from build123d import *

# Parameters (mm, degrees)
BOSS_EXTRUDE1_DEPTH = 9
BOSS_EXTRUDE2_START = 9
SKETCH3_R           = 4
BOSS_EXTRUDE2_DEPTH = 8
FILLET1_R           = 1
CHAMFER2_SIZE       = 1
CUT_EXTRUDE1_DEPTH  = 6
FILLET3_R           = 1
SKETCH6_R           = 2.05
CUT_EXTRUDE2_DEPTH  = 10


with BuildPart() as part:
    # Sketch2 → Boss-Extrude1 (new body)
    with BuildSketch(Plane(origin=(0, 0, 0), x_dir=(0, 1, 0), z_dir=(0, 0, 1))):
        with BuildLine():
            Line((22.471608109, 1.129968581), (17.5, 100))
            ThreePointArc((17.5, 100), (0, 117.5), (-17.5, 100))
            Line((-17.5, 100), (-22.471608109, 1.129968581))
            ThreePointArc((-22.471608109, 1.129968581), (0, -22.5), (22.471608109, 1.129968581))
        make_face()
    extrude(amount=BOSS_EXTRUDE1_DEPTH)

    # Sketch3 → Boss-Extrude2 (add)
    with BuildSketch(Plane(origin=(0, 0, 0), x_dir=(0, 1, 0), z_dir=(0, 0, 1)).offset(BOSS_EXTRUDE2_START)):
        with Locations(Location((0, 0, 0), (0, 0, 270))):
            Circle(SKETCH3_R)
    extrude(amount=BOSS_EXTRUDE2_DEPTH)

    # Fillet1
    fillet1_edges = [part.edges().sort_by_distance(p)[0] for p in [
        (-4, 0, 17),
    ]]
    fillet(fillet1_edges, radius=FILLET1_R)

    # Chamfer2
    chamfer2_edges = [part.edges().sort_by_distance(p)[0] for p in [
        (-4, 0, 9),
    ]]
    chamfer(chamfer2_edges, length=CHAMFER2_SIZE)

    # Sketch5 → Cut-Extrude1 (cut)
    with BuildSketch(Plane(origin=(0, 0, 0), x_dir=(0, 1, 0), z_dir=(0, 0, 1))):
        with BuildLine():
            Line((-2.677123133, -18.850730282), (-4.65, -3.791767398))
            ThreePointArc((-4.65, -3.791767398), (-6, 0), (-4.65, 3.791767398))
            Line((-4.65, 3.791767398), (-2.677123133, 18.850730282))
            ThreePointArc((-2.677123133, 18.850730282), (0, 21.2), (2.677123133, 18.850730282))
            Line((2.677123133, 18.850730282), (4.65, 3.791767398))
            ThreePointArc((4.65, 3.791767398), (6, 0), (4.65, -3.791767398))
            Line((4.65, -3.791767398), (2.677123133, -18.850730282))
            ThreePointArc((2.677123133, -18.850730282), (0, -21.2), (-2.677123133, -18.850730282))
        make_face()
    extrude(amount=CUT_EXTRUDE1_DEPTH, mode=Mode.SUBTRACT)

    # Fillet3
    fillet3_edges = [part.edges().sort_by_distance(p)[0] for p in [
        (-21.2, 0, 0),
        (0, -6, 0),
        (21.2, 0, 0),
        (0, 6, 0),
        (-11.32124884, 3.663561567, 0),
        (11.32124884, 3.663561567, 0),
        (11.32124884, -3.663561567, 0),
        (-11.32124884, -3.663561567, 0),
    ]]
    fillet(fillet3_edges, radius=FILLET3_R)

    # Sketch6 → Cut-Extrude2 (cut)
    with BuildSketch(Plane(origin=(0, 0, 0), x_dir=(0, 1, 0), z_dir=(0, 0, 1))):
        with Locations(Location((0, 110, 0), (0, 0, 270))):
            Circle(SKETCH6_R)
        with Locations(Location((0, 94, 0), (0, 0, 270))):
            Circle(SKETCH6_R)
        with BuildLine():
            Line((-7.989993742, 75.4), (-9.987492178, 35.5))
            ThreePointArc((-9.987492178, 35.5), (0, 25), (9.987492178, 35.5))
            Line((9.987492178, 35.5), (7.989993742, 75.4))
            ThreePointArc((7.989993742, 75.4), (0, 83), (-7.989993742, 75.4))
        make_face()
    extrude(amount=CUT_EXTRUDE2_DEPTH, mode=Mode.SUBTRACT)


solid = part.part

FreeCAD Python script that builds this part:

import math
import FreeCAD as App
import Part
import Sketcher
from FreeCAD import Vector


def edges_at(feature, points):
    """Names of the edges that pass closest to the given points."""
    edges = feature.Shape.Edges
    near = lambda p: min(range(len(edges)), key=lambda i: edges[i].distToShape(Part.Vertex(*p))[0])
    return sorted({f"Edge{near(p) + 1}" for p in points})

doc = App.newDocument("Part")
params = doc.addObject("Spreadsheet::Sheet", "Params")
for row, (alias, value) in enumerate([
    ("sketch1_radius", "17.5 mm"),
    ("sketch1_radius2", "22.5 mm"),
    ("pad1_length", "9 mm"),
    ("sketch2_diameter", "8 mm"),
    ("pad2_length", "8 mm"),
    ("fillet_radius", "1 mm"),
    ("chamfer_size", "1 mm"),
    ("sketch3_radius", "6 mm"),
    ("sketch3_radius2", "2.7 mm"),
    ("pocket1_length", "6 mm"),
    ("fillet2_radius", "1 mm"),
    ("sketch4_radius", "10 mm"),
    ("sketch4_radius2", "8 mm"),
    ("sketch4_diameter", "4.1 mm"),
    ("pocket2_length", "10 mm"),
], start=1):
    params.set(f"A{row}", alias)
    params.set(f"B{row}", "=" + value)
    params.setAlias(f"B{row}", alias)

body = doc.addObject("PartDesign::Body", "Body")

# Sketch on XY plane
sketch1 = body.newObject("Sketcher::SketchObject", "Sketch")
sketch1.AttachmentSupport = (doc.getObject("XY_Plane"), [""])
sketch1.MapMode = "FlatFace"
sketch1.addGeometry([
    Part.LineSegment(Vector(-1, 22, 0), Vector(-100, 18, 0)),
    Part.ArcOfCircle(Part.Circle(Vector(-100, 0, 0), Vector(0, 0, 1), 18), math.radians(90), math.radians(270)),
    Part.LineSegment(Vector(-100, -18, 0), Vector(-1, -22, 0)),
    Part.ArcOfCircle(Part.Circle(Vector(0, 0, 0), Vector(0, 0, 1), 22), math.radians(-93), math.radians(93)),
], False)
sketch1.addConstraint([
    Sketcher.Constraint("Coincident", 0, 2, 1, 1),
    Sketcher.Constraint("Coincident", 1, 2, 2, 1),
    Sketcher.Constraint("Tangent", 2, 2, 3, 1),
    Sketcher.Constraint("Tangent", 3, 2, 0, 1),
    Sketcher.Constraint("Coincident", 3, 3, -1, 1),
    Sketcher.Constraint("Symmetric", 0, 2, 1, 2, -1),
    Sketcher.Constraint("Vertical", 1, 3, 0, 2),
    Sketcher.Constraint("Radius", 1, 17.5),
    Sketcher.Constraint("Radius", 3, 22.5),
    Sketcher.Constraint("DistanceX", 1, 3, -1, 1, 100.0),
])
sketch1.setExpression("Constraints[7]", "Params.sketch1_radius")
sketch1.setExpression("Constraints[8]", "Params.sketch1_radius2")
pad1 = body.newObject("PartDesign::Pad", "Pad")
pad1.Profile = sketch1
pad1.setExpression("Length", "Params.pad1_length")

# Sketch on XY plane
sketch2 = body.newObject("Sketcher::SketchObject", "Sketch001")
sketch2.AttachmentSupport = (doc.getObject("XY_Plane"), [""])
sketch2.MapMode = "FlatFace"
sketch2.AttachmentOffset = App.Placement(Vector(0, 0, 9), App.Rotation())
sketch2.addGeometry(Part.Circle(Vector(0, 0, 0), Vector(0, 0, 1), 4), False)
sketch2.addConstraint([
    Sketcher.Constraint("Coincident", 0, 3, -1, 1),
    Sketcher.Constraint("Diameter", 0, 8.0),
])
sketch2.setExpression("Constraints[1]", "Params.sketch2_diameter")
pad2 = body.newObject("PartDesign::Pad", "Pad001")
pad2.Profile = sketch2
pad2.setExpression("Length", "Params.pad2_length")
doc.recompute()

fillet = body.newObject("PartDesign::Fillet", "Fillet")
fillet.Base = (pad2, edges_at(pad2, [(-4, 0, 17)]))
fillet.setExpression("Radius", "Params.fillet_radius")
doc.recompute()

chamfer = body.newObject("PartDesign::Chamfer", "Chamfer")
chamfer.Base = (fillet, edges_at(fillet, [(-4, 0, 9)]))
chamfer.setExpression("Size", "Params.chamfer_size")

# Sketch on XY plane
sketch3 = body.newObject("Sketcher::SketchObject", "Sketch002")
sketch3.AttachmentSupport = (doc.getObject("XY_Plane"), [""])
sketch3.MapMode = "FlatFace"
sketch3.addGeometry([
    Part.LineSegment(Vector(3.8, -4.7, 0), Vector(18.9, -2.7, 0)),  # 0
    Part.ArcOfCircle(Part.Circle(Vector(18.5, 0, 0), Vector(0, 0, 1), 2.7), math.radians(-83), math.radians(83)),  # 1
    Part.LineSegment(Vector(18.9, 2.7, 0), Vector(3.8, 4.7, 0)),  # 2
    Part.ArcOfCircle(Part.Circle(Vector(0, 0, 0), Vector(0, 0, 1), 6), math.radians(51), math.radians(129)),  # 3
    Part.LineSegment(Vector(-3.8, 4.7, 0), Vector(-18.9, 2.7, 0)),  # 4
    Part.ArcOfCircle(Part.Circle(Vector(-18.5, 0, 0), Vector(0, 0, 1), 2.7), math.radians(97), math.radians(263)),  # 5
    Part.LineSegment(Vector(-18.9, -2.7, 0), Vector(-3.8, -4.7, 0)),  # 6
    Part.ArcOfCircle(Part.Circle(Vector(0, 0, 0), Vector(0, 0, 1), 6), math.radians(-129), math.radians(-51)),  # 7
], False)
sketch3.addConstraint([
    Sketcher.Constraint("Tangent", 0, 2, 1, 1),
    Sketcher.Constraint("Tangent", 1, 2, 2, 1),
    Sketcher.Constraint("Coincident", 2, 2, 3, 1),
    Sketcher.Constraint("Coincident", 3, 2, 4, 1),
    Sketcher.Constraint("Tangent", 4, 2, 5, 1),
    Sketcher.Constraint("Tangent", 5, 2, 6, 1),
    Sketcher.Constraint("Coincident", 6, 2, 7, 1),
    Sketcher.Constraint("Coincident", 7, 2, 0, 1),
    Sketcher.Constraint("Coincident", 3, 3, -1, 1),
    Sketcher.Constraint("Coincident", 7, 3, -1, 1),
    Sketcher.Constraint("Equal", 1, 5),
    Sketcher.Constraint("Equal", 3, 7),
    Sketcher.Constraint("Symmetric", 1, 3, 5, 3, -1, 1),
    Sketcher.Constraint("Symmetric", 1, 2, 4, 2, -2),
    Sketcher.Constraint("Parallel", 0, 4),
    Sketcher.Constraint("Parallel", 2, 6),
    Sketcher.Constraint("Radius", 3, 6.0),
    Sketcher.Constraint("Radius", 1, 2.7),
    Sketcher.Constraint("DistanceX", 5, 3, 1, 3, 37.0),
    Sketcher.Constraint("DistanceY", 6, 2, 3, 2, 9.3),
])
sketch3.setExpression("Constraints[16]", "Params.sketch3_radius")
sketch3.setExpression("Constraints[17]", "Params.sketch3_radius2")
pocket1 = body.newObject("PartDesign::Pocket", "Pocket")
pocket1.Profile = sketch3
pocket1.setExpression("Length", "Params.pocket1_length")
pocket1.Reversed = True
doc.recompute()

fillet2 = body.newObject("PartDesign::Fillet", "Fillet001")
fillet2.Base = (pocket1, edges_at(pocket1, [
    (-21.2, 0, 0),
    (0, -6, 0),
    (21.2, 0, 0),
    (0, 6, 0),
    (-11.321, 3.664, 0),
    (11.321, 3.664, 0),
    (11.321, -3.664, 0),
    (-11.321, -3.664, 0),
]))
fillet2.setExpression("Radius", "Params.fillet2_radius")

# Sketch on XY plane
sketch4 = body.newObject("Sketcher::SketchObject", "Sketch003")
sketch4.AttachmentSupport = (doc.getObject("XY_Plane"), [""])
sketch4.MapMode = "FlatFace"
sketch4.addGeometry([
    Part.Circle(Vector(-110, 0, 0), Vector(0, 0, 1), 2),  # 0
    Part.Circle(Vector(-94, 0, 0), Vector(0, 0, 1), 2),  # 1
    Part.LineSegment(Vector(-75.4, -8, 0), Vector(-35.5, -10, 0)),  # 2
    Part.ArcOfCircle(Part.Circle(Vector(-35, 0, 0), Vector(0, 0, 1), 10), math.radians(-93), math.radians(93)),  # 3
    Part.LineSegment(Vector(-35.5, 10, 0), Vector(-75.4, 8, 0)),  # 4
    Part.ArcOfCircle(Part.Circle(Vector(-75, 0, 0), Vector(0, 0, 1), 8), math.radians(93), math.radians(267)),  # 5
], False)
sketch4.addConstraint([
    Sketcher.Constraint("Tangent", 2, 2, 3, 1),
    Sketcher.Constraint("Tangent", 3, 2, 4, 1),
    Sketcher.Constraint("Tangent", 4, 2, 5, 1),
    Sketcher.Constraint("Tangent", 5, 2, 2, 1),
    Sketcher.Constraint("Equal", 0, 1),
    Sketcher.Constraint("Symmetric", 2, 2, 3, 2, -1),
    Sketcher.Constraint("PointOnObject", 0, 3, -1),
    Sketcher.Constraint("PointOnObject", 1, 3, -1),
    Sketcher.Constraint("Radius", 3, 10.0),
    Sketcher.Constraint("Radius", 5, 8.0),
    Sketcher.Constraint("Diameter", 0, 4.1),
    Sketcher.Constraint("DistanceX", 0, 3, -1, 1, 110.0),
    Sketcher.Constraint("DistanceX", 1, 3, -1, 1, 94.0),
    Sketcher.Constraint("DistanceX", 3, 3, -1, 1, 35.0),
    Sketcher.Constraint("DistanceX", 5, 3, -1, 1, 75.0),
])
sketch4.setExpression("Constraints[8]", "Params.sketch4_radius")
sketch4.setExpression("Constraints[9]", "Params.sketch4_radius2")
sketch4.setExpression("Constraints[10]", "Params.sketch4_diameter")
pocket2 = body.newObject("PartDesign::Pocket", "Pocket001")
pocket2.Profile = sketch4
pocket2.setExpression("Length", "Params.pocket2_length")
pocket2.Reversed = True

doc.recompute()
